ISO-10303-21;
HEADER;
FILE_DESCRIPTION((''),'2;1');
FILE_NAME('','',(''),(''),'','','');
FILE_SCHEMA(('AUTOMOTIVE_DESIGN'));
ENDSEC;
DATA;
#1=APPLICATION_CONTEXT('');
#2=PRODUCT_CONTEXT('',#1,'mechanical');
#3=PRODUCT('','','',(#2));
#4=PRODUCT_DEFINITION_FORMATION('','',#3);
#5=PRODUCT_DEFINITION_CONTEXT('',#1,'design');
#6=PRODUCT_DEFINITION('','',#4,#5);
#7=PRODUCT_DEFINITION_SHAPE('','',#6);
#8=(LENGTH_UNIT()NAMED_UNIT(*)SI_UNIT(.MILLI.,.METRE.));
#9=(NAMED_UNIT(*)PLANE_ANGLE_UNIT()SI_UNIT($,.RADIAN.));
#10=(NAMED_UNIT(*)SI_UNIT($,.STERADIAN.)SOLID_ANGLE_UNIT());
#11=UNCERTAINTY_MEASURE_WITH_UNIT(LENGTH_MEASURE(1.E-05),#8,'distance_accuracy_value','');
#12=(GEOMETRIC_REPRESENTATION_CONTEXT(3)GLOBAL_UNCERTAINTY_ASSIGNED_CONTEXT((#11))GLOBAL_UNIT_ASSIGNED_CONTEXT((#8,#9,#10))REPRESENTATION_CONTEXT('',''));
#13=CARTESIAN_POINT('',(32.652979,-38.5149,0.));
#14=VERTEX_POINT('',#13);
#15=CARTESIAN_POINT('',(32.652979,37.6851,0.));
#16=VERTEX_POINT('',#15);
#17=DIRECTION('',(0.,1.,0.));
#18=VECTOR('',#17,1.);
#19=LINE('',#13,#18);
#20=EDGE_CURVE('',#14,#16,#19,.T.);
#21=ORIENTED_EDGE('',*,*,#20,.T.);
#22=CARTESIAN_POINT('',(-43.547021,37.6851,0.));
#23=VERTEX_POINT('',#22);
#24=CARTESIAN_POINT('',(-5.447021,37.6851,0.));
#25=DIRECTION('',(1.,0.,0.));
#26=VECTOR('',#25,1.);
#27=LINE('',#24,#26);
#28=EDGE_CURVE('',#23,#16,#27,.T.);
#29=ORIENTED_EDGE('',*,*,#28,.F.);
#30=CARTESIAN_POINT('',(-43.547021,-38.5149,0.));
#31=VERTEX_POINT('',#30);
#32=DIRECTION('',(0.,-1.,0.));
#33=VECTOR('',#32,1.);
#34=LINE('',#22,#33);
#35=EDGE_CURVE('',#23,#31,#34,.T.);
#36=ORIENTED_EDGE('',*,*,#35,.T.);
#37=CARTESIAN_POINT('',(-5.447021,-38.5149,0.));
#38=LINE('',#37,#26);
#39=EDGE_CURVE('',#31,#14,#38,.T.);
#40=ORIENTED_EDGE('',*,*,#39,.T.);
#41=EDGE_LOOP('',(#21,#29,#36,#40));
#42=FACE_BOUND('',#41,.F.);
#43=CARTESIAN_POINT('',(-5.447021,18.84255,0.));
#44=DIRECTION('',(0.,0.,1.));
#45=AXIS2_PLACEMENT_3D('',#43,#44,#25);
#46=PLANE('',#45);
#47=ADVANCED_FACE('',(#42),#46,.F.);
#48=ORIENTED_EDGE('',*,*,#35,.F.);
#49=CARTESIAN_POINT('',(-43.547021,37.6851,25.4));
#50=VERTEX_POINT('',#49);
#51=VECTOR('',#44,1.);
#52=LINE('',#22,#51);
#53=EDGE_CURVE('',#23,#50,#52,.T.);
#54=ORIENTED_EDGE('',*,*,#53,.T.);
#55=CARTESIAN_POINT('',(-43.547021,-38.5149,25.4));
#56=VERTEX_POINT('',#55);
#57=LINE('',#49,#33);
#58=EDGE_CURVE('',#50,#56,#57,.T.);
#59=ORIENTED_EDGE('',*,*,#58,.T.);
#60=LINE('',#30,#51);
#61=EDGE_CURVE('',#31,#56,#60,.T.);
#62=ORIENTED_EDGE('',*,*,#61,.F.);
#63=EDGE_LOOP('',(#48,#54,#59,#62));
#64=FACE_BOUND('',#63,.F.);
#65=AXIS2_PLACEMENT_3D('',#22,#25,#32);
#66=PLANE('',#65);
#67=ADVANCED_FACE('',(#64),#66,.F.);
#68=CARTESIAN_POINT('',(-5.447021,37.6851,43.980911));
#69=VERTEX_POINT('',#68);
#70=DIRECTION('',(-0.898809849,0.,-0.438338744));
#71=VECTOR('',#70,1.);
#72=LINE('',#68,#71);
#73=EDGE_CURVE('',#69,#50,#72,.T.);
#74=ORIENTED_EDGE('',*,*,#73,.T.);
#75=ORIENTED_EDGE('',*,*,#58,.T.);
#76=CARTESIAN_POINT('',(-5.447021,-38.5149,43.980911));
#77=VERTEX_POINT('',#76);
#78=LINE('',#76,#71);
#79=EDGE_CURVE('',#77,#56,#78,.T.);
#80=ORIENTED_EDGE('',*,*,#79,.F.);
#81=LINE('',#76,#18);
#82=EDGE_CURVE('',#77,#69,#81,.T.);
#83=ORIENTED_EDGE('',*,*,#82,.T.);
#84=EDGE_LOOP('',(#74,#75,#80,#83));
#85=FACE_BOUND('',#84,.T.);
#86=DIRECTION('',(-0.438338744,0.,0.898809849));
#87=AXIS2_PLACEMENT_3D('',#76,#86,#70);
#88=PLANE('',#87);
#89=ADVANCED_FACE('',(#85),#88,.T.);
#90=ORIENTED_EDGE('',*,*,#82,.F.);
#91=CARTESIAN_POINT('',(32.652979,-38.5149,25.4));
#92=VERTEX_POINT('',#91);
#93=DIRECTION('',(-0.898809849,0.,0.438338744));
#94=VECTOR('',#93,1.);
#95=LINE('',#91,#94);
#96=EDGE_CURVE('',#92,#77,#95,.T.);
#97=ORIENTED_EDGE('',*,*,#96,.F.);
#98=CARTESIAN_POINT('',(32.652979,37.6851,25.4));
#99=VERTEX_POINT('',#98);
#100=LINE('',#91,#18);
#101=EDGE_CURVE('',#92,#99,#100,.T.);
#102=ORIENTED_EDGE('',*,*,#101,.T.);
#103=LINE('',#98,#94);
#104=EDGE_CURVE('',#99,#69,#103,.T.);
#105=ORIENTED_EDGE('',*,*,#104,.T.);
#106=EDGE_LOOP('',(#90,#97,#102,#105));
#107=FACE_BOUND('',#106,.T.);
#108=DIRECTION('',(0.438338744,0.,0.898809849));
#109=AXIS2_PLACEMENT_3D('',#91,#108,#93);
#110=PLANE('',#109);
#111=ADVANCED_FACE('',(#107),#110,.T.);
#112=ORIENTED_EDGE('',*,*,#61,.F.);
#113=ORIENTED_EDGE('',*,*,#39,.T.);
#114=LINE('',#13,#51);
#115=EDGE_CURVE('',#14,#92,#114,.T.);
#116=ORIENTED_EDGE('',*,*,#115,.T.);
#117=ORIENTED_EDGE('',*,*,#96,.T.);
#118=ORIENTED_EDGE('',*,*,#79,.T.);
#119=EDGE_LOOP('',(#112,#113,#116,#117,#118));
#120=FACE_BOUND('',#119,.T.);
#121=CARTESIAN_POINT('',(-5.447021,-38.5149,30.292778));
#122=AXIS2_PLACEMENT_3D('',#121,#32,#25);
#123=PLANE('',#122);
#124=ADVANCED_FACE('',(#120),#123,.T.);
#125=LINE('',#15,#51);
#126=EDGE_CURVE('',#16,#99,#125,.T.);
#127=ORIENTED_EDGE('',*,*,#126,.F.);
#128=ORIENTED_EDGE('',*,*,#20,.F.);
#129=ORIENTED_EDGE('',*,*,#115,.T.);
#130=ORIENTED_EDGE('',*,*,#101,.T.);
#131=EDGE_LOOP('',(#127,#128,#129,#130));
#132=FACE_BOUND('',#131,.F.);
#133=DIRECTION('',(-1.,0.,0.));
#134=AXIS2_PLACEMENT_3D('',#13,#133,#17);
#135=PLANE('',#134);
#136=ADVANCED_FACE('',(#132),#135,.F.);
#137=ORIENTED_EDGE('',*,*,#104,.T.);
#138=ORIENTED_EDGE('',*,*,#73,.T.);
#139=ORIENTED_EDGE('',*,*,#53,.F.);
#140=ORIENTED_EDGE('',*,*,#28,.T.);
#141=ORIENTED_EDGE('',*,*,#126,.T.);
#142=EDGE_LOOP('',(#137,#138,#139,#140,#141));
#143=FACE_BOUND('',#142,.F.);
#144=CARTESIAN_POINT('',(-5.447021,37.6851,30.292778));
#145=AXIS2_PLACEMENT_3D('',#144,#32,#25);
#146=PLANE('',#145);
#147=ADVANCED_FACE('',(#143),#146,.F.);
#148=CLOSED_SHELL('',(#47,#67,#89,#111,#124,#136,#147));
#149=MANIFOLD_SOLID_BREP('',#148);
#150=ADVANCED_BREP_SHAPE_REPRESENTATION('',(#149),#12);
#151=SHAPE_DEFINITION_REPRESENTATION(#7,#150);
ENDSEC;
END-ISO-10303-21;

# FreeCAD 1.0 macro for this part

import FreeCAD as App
import Part
import Sketcher

V = App.Vector
Q = App.Units.Quantity

doc = App.newDocument("Part")
body = doc.addObject("PartDesign::Body", "Body")

sketch1 = body.newObject("Sketcher::SketchObject", "Sketch")
sketch1.AttachmentSupport = (doc.getObject("XY_Plane"), [""])
sketch1.MapMode = "FlatFace"
sketch1.addGeometry(Part.LineSegment(V(-44, 38, 0), V(-44, -39, 0)), False)
sketch1.addGeometry(Part.LineSegment(V(-44, -39, 0), V(33, -39, 0)), False)
sketch1.addGeometry(Part.LineSegment(V(33, -39, 0), V(33, 38, 0)), False)
sketch1.addGeometry(Part.LineSegment(V(33, 38, 0), V(-44, 38, 0)), False)
sketch1.addConstraint(Sketcher.Constraint("Coincident", 0, 2, 1, 1))
sketch1.addConstraint(Sketcher.Constraint("Coincident", 1, 2, 2, 1))
sketch1.addConstraint(Sketcher.Constraint("Coincident", 2, 2, 3, 1))
sketch1.addConstraint(Sketcher.Constraint("Coincident", 3, 2, 0, 1))
sketch1.addConstraint(Sketcher.Constraint("Vertical", 0))
sketch1.addConstraint(Sketcher.Constraint("Horizontal", 1))
sketch1.addConstraint(Sketcher.Constraint("Vertical", 2))
sketch1.addConstraint(Sketcher.Constraint("Horizontal", 3))
sketch1.addConstraint(Sketcher.Constraint("Equal", 3, 0))
sketch1.addConstraint(Sketcher.Constraint("DistanceX", 1, 1, 1, 2, Q("3 in")))
sketch1.addConstraint(Sketcher.Constraint("DistanceY", 0, 2, -1, 1, 38.5149))
sketch1.addConstraint(Sketcher.Constraint("DistanceX", 0, 2, -1, 1, 43.547021))
pad1 = body.newObject("PartDesign::Pad", "Pad")
pad1.Profile = sketch1
pad1.Length = Q("1 in")

sketch2 = body.newObject("Sketcher::SketchObject", "Sketch001")
sketch2.AttachmentSupport = (doc.getObject("XZ_Plane"), [""])
sketch2.MapMode = "FlatFace"
sketch2.AttachmentOffset = App.Placement(V(0, 0, 38.5149), App.Rotation())
sketch2.addGeometry(Part.LineSegment(V(-44, 25, 0), V(33, 25, 0)), False)
sketch2.addGeometry(Part.LineSegment(V(33, 25, 0), V(-5, 44, 0)), False)
sketch2.addGeometry(Part.LineSegment(V(-5, 44, 0), V(-44, 25, 0)), False)
sketch2.addConstraint(Sketcher.Constraint("Coincident", 0, 2, 1, 1))
sketch2.addConstraint(Sketcher.Constraint("Coincident", 1, 2, 2, 1))
sketch2.addConstraint(Sketcher.Constraint("Coincident", 2, 2, 0, 1))
sketch2.addConstraint(Sketcher.Constraint("Horizontal", 0))
sketch2.addConstraint(Sketcher.Constraint("Equal", 1, 2))
sketch2.addConstraint(Sketcher.Constraint("DistanceX", 0, 1, 0, 2, Q("3 in")))
sketch2.addConstraint(Sketcher.Constraint("DistanceY", -1, 1, 0, 2, Q("1 in")))
sketch2.addConstraint(Sketcher.Constraint("Distance", 1, 42.389389))
sketch2.addConstraint(Sketcher.Constraint("DistanceX", -1, 1, 0, 2, 32.652979))
pad2 = body.newObject("PartDesign::Pad", "Pad001")
pad2.Profile = sketch2
pad2.Length = Q("3 in")
pad2.Reversed = True

doc.recompute()
